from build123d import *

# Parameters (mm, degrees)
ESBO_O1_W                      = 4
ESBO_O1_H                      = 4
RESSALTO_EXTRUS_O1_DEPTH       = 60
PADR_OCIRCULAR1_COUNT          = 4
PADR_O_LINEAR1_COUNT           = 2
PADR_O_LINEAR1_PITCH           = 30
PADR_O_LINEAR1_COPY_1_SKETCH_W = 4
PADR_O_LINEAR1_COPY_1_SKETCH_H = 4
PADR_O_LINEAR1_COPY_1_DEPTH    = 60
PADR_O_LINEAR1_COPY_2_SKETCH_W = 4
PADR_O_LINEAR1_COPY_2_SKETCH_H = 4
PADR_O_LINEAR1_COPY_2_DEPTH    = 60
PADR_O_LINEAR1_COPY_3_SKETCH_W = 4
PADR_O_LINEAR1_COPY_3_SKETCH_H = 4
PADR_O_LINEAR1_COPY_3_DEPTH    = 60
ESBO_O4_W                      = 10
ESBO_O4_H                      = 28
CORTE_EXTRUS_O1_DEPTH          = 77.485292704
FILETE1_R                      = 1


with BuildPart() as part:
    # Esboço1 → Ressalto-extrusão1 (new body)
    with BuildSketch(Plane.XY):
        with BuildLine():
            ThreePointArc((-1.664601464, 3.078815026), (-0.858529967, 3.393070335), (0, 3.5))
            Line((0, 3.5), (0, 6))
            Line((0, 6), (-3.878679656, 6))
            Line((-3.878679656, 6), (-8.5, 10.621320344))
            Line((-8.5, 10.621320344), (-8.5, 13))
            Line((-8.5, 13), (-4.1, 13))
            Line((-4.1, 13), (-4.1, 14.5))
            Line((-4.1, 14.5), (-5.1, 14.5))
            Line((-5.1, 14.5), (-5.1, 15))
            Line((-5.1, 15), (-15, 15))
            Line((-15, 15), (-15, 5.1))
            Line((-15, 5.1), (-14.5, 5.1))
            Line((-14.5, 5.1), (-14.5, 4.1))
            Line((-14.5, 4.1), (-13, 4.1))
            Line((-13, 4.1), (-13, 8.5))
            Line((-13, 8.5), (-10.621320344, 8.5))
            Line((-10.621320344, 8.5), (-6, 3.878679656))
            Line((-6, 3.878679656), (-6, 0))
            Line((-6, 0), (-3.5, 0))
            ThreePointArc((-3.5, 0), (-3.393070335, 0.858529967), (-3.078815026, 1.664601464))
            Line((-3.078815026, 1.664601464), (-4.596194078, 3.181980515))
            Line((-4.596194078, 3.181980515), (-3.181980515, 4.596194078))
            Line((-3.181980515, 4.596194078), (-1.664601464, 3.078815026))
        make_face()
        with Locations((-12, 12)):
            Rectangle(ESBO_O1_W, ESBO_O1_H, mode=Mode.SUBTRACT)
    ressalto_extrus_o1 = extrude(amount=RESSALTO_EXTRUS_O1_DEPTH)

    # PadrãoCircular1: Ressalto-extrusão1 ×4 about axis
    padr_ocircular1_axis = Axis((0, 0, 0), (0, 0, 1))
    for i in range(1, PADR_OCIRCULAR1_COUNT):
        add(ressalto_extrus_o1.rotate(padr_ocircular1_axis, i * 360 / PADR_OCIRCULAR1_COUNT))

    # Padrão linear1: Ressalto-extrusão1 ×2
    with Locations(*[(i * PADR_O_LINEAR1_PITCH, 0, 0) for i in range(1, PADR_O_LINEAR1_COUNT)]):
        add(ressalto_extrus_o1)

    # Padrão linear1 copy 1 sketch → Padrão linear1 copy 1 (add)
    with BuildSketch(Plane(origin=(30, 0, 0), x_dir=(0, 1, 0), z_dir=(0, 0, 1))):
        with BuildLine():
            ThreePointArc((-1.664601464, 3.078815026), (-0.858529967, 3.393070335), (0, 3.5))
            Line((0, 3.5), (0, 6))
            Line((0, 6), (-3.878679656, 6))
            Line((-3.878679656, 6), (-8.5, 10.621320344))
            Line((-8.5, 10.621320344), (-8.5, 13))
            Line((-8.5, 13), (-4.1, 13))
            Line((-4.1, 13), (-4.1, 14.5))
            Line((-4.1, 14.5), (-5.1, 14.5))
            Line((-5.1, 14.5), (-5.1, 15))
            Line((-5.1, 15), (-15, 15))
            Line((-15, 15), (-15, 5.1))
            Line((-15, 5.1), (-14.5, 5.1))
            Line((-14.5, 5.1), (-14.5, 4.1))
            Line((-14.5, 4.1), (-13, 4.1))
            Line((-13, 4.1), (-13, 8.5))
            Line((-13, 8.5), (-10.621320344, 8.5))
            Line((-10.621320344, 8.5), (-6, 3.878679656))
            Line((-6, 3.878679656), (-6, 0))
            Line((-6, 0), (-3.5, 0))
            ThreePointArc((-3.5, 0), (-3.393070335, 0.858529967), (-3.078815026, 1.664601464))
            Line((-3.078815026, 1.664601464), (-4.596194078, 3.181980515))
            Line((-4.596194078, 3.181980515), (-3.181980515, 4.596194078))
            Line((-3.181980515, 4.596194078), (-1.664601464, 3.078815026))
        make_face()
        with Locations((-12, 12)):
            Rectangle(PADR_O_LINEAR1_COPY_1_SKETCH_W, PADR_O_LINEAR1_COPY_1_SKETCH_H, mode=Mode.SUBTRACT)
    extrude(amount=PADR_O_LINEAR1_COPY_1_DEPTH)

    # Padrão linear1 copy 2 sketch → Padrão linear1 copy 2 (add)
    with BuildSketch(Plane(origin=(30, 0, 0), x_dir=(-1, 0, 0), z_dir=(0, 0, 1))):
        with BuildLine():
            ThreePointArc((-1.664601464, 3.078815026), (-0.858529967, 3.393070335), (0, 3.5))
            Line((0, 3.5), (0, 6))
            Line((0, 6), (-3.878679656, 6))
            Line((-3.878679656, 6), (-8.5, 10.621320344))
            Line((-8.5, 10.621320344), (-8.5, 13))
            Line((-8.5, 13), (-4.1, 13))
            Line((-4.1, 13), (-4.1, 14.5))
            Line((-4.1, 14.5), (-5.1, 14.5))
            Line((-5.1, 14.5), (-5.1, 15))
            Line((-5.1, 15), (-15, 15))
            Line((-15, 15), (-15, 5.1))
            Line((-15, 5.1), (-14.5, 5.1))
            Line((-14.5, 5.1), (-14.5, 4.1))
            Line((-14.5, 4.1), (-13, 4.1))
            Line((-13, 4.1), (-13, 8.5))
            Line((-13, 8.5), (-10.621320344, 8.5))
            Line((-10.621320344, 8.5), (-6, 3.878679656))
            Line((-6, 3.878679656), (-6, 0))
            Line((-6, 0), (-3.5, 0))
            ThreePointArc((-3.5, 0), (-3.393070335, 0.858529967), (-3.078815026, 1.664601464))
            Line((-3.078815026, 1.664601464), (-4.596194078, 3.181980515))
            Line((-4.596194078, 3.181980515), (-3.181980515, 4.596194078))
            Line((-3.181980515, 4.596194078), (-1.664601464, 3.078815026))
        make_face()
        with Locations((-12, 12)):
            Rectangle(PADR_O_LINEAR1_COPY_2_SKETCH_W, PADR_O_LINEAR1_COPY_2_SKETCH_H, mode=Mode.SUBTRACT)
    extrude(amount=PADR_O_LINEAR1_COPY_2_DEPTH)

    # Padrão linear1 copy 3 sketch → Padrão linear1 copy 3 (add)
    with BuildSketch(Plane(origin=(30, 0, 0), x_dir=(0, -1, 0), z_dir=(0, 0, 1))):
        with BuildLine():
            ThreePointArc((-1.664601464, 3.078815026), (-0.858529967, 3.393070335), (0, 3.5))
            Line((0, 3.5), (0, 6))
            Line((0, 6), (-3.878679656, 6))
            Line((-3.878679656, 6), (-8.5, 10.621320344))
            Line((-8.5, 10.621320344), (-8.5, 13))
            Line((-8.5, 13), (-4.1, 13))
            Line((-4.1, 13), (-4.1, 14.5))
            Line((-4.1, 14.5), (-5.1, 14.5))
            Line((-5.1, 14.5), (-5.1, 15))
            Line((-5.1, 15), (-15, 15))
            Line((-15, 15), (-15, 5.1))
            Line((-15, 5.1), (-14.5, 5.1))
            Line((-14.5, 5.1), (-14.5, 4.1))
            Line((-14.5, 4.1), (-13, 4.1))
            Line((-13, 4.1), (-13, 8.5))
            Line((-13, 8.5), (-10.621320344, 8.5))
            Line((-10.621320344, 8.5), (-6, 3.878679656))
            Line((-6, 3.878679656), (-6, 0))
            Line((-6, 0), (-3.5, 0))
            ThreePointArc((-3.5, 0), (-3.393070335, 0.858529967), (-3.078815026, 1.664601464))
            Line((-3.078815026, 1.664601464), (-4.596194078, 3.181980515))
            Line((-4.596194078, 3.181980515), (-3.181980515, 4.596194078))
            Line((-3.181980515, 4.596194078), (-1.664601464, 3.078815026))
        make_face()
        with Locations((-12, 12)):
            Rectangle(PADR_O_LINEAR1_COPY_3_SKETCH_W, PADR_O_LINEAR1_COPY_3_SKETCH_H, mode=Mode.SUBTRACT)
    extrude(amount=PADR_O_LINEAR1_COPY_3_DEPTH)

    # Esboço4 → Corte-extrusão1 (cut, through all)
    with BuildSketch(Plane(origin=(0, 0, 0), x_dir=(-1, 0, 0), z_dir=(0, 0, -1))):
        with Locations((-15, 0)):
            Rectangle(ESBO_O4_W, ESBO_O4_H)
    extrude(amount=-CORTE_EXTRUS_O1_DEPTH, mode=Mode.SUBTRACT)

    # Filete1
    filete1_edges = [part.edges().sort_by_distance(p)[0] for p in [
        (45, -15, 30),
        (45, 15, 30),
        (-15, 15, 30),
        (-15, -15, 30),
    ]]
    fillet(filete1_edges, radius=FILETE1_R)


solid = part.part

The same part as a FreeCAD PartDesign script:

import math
import FreeCAD as App
import Part
import Sketcher

V = App.Vector
Q = App.Units.Quantity


def edges_at(feature, points):
    """Names of the edges that pass closest to the given points."""
    edges = feature.Shape.Edges
    near = lambda p: min(range(len(edges)), key=lambda i: edges[i].distToShape(Part.Vertex(*p))[0])
    return sorted({f"Edge{near(p) + 1}" for p in points})


def add_polygon(sketch, points):
    """Adds a closed chain of lines whose ends are joined by coincident constraints."""
    first, n = sketch.GeometryCount, len(points)
    for a, b in zip(points, points[1:] + points[:1]):
        sketch.addGeometry(Part.LineSegment(App.Vector(*a, 0), App.Vector(*b, 0)), False)
    for i in range(n):
        sketch.addConstraint(Sketcher.Constraint("Coincident", first + i, 2, first + (i + 1) % n, 1))

doc = App.newDocument("Part")
params = doc.addObject("Spreadsheet::Sheet", "Params")
for row, (alias, value) in enumerate([
    ("sketch1_radius", "3.5 mm"),
    ("sketch1_width", "1 mm"),
    ("sketch1_width2", "4 mm"),
    ("sketch1_length", "2 mm"),
    ("sketch1_width3", "4.4 mm"),
    ("pad1_length", "60 mm"),
    ("linearpattern_pitch", "30 mm"),
    ("sketch2_radius", "3.5 mm"),
    ("sketch2_width", "1 mm"),
    ("sketch2_width2", "4 mm"),
    ("sketch2_length", "2 mm"),
    ("sketch2_width3", "2.5 mm"),
    ("pad2_length", "60 mm"),
    ("sketch3_radius", "3.5 mm"),
    ("sketch3_width", "1 mm"),
    ("sketch3_width2", "4 mm"),
    ("sketch3_length", "2 mm"),
    ("sketch3_width3", "4.4 mm"),
    ("pad3_length", "60 mm"),
    ("sketch4_radius", "3.5 mm"),
    ("sketch4_width", "1 mm"),
    ("sketch4_width2", "4 mm"),
    ("sketch4_length", "2 mm"),
    ("sketch4_width3", "2.5 mm"),
    ("pad4_length", "60 mm"),
    ("sketch5_width", "10 mm"),
    ("sketch5_height", "28 mm"),
    ("fillet_radius", "1 mm"),
], start=1):
    params.set(f"A{row}", alias)
    params.set(f"B{row}", "=" + value)
    params.setAlias(f"B{row}", alias)

body = doc.addObject("PartDesign::Body", "Body")

# Sketch on XY plane
sketch1 = body.newObject("Sketcher::SketchObject", "Sketch")
sketch1.AttachmentSupport = (doc.getObject("XY_Plane"), [""])
sketch1.MapMode = "FlatFace"
sketch1.addGeometry(Part.ArcOfCircle(Part.Circle(V(0, 0, 0), V(0, 0, 1), 3.5), math.radians(90), math.radians(118)), False)  # 0
sketch1.addGeometry(Part.LineSegment(V(0, 3.5, 0), V(0, 6, 0)), False)  # 1
sketch1.addGeometry(Part.LineSegment(V(0, 6, 0), V(-3.9, 6, 0)), False)  # 2
sketch1.addGeometry(Part.LineSegment(V(-3.9, 6, 0), V(-8.5, 10.6, 0)), False)  # 3
sketch1.addGeometry(Part.LineSegment(V(-8.5, 10.6, 0), V(-8.5, 13, 0)), False)  # 4
sketch1.addGeometry(Part.LineSegment(V(-8.5, 13, 0), V(-4.1, 13, 0)), False)  # 5
sketch1.addGeometry(Part.LineSegment(V(-4.1, 13, 0), V(-4.1, 14.5, 0)), False)  # 6
sketch1.addGeometry(Part.LineSegment(V(-4.1, 14.5, 0), V(-5.1, 14.5, 0)), False)  # 7
sketch1.addGeometry(Part.LineSegment(V(-5.1, 14.5, 0), V(-5.1, 15, 0)), False)  # 8
sketch1.addGeometry(Part.LineSegment(V(-5.1, 15, 0), V(-15, 15, 0)), False)  # 9
sketch1.addGeometry(Part.LineSegment(V(-15, 15, 0), V(-15, 5.1, 0)), False)  # 10
sketch1.addGeometry(Part.LineSegment(V(-15, 5.1, 0), V(-14.5, 5.1, 0)), False)  # 11
sketch1.addGeometry(Part.LineSegment(V(-14.5, 5.1, 0), V(-14.5, 4.1, 0)), False)  # 12
sketch1.addGeometry(Part.LineSegment(V(-14.5, 4.1, 0), V(-13, 4.1, 0)), False)  # 13
sketch1.addGeometry(Part.LineSegment(V(-13, 4.1, 0), V(-13, 8.5, 0)), False)  # 14
sketch1.addGeometry(Part.LineSegment(V(-13, 8.5, 0), V(-10.6, 8.5, 0)), False)  # 15
sketch1.addGeometry(Part.LineSegment(V(-10.6, 8.5, 0), V(-6, 3.9, 0)), False)  # 16
sketch1.addGeometry(Part.LineSegment(V(-6, 3.9, 0), V(-6, 0, 0)), False)  # 17
sketch1.addGeometry(Part.LineSegment(V(-6, 0, 0), V(-3.5, 0, 0)), False)  # 18
sketch1.addGeometry(Part.ArcOfCircle(Part.Circle(V(0, 0, 0), V(0, 0, 1), 3.5), math.radians(152), math.radians(180)), False)  # 19
sketch1.addGeometry(Part.LineSegment(V(-3.1, 1.7, 0), V(-4.6, 3.2, 0)), False)  # 20
sketch1.addGeometry(Part.LineSegment(V(-4.6, 3.2, 0), V(-3.2, 4.6, 0)), False)  # 21
sketch1.addGeometry(Part.LineSegment(V(-3.2, 4.6, 0), V(-1.7, 3.1, 0)), False)  # 22
add_polygon(sketch1, [(-10, 10), (-14, 10), (-14, 14), (-10, 14)])  # lines 23-26
sketch1.addConstraint([
    Sketcher.Constraint("Coincident", 0, 1, 1, 1),
    Sketcher.Constraint("Coincident", 1, 2, 2, 1),
    Sketcher.Constraint("Coincident", 2, 2, 3, 1),
    Sketcher.Constraint("Coincident", 3, 2, 4, 1),
    Sketcher.Constraint("Coincident", 4, 2, 5, 1),
    Sketcher.Constraint("Coincident", 5, 2, 6, 1),
    Sketcher.Constraint("Coincident", 6, 2, 7, 1),
    Sketcher.Constraint("Coincident", 7, 2, 8, 1),
    Sketcher.Constraint("Coincident", 8, 2, 9, 1),
    Sketcher.Constraint("Coincident", 9, 2, 10, 1),
    Sketcher.Constraint("Coincident", 10, 2, 11, 1),
    Sketcher.Constraint("Coincident", 11, 2, 12, 1),
    Sketcher.Constraint("Coincident", 12, 2, 13, 1),
    Sketcher.Constraint("Coincident", 13, 2, 14, 1),
    Sketcher.Constraint("Coincident", 14, 2, 15, 1),
    Sketcher.Constraint("Coincident", 15, 2, 16, 1),
    Sketcher.Constraint("Coincident", 16, 2, 17, 1),
    Sketcher.Constraint("Coincident", 17, 2, 18, 1),
    Sketcher.Constraint("Coincident", 18, 2, 19, 2),
    Sketcher.Constraint("Coincident", 19, 1, 20, 1),
    Sketcher.Constraint("Coincident", 20, 2, 21, 1),
    Sketcher.Constraint("Coincident", 21, 2, 22, 1),
    Sketcher.Constraint("Coincident", 22, 2, 0, 2),
    Sketcher.Constraint("Vertical", 1),
    Sketcher.Constraint("Horizontal", 2),
    Sketcher.Constraint("Vertical", 4),
    Sketcher.Constraint("Horizontal", 5),
    Sketcher.Constraint("Vertical", 6),
    Sketcher.Constraint("Horizontal", 7),
    Sketcher.Constraint("Vertical", 8),
    Sketcher.Constraint("Horizontal", 9),
    Sketcher.Constraint("Vertical", 10),
    Sketcher.Constraint("Horizontal", 11),
    Sketcher.Constraint("Vertical", 12),
    Sketcher.Constraint("Horizontal", 13),
    Sketcher.Constraint("Vertical", 14),
    Sketcher.Constraint("Horizontal", 15),
    Sketcher.Constraint("Vertical", 17),
    Sketcher.Constraint("Horizontal", 18),
    Sketcher.Constraint("Horizontal", 23),
    Sketcher.Constraint("Vertical", 24),
    Sketcher.Constraint("Horizontal", 25),
    Sketcher.Constraint("Vertical", 26),
    Sketcher.Constraint("Coincident", 0, 3, -1, 1),
    Sketcher.Constraint("Coincident", 19, 3, -1, 1),
    Sketcher.Constraint("Equal", 0, 19),
    Sketcher.Constraint("PointOnObject", 0, 1, -2),
    Sketcher.Constraint("PointOnObject", 17, 2, -1),
    Sketcher.Constraint("Parallel", 3, 16),
    Sketcher.Constraint("Parallel", 16, 20),
    Sketcher.Constraint("Perpendicular", 20, 21),
    Sketcher.Constraint("Perpendicular", 21, 22),
    Sketcher.Constraint("Equal", 18, 1),
    Sketcher.Constraint("Equal", 15, 4),
    Sketcher.Constraint("Equal", 13, 6),
    Sketcher.Constraint("Equal", 11, 8),
    Sketcher.Constraint("Equal", 9, 10),
    Sketcher.Constraint("Equal", 7, 12),
    Sketcher.Constraint("Equal", 5, 14),
    Sketcher.Constraint("Equal", 2, 17),
    Sketcher.Constraint("Equal", 25, 24),
    Sketcher.Constraint("Equal", 20, 22),
    Sketcher.Constraint("Radius", 0, 3.5),
    Sketcher.Constraint("DistanceX", 7, 2, 7, 1, 1.0),
    Sketcher.Constraint("DistanceX", 23, 2, 23, 1, 4.0),
    Sketcher.Constraint("Angle", 3, Q("135 deg")),
    Sketcher.Constraint("Distance", 21, 2.0),
    Sketcher.Constraint("DistanceX", 5, 1, 5, 2, 4.4),
    Sketcher.Constraint("DistanceX", 9, 2, 9, 1, 9.9),
    Sketcher.Constraint("DistanceX", 11, 1, 11, 2, 0.5),
    Sketcher.Constraint("DistanceX", 13, 1, 13, 2, 1.5),
    Sketcher.Constraint("DistanceX", 18, 1, 18, 2, 2.5),
    Sketcher.Constraint("DistanceY", -1, 1, 4, 2, 13.0),
    Sketcher.Constraint("DistanceX", 23, 2, -1, 1, 14.0),
    Sketcher.Constraint("DistanceY", -1, 1, 23, 2, 10.0),
    Sketcher.Constraint("Distance", 20, 2.145898),
    Sketcher.Constraint("DistanceX", 2, 2, 2, 1, 3.87868),
])
sketch1.setExpression("Constraints[66]", "Params.sketch1_radius")
sketch1.setExpression("Constraints[67]", "Params.sketch1_width")
sketch1.setExpression("Constraints[68]", "Params.sketch1_width2")
sketch1.setExpression("Constraints[70]", "Params.sketch1_length")
sketch1.setExpression("Constraints[71]", "Params.sketch1_width3")
pad1 = body.newObject("PartDesign::Pad", "Pad")
pad1.Profile = sketch1
pad1.setExpression("Length", "Params.pad1_length")
doc.recompute()

polarpattern = body.newObject("PartDesign::PolarPattern", "PolarPattern")
polarpattern.Originals = [pad1]
polarpattern.Axis = (doc.getObject("Z_Axis"), [""])
polarpattern.Angle = 360
polarpattern.Occurrences = 4
body.Tip = polarpattern
doc.recompute()

linearpattern = body.newObject("PartDesign::LinearPattern", "LinearPattern")
linearpattern.Originals = [pad1]
linearpattern.Direction = (doc.getObject("X_Axis"), [""])
linearpattern.Mode = "offset"
linearpattern.setExpression("Offset", "Params.linearpattern_pitch")
linearpattern.Occurrences = 2
body.Tip = linearpattern

# Sketch on XY plane
sketch2 = body.newObject("Sketcher::SketchObject", "Sketch001")
sketch2.AttachmentSupport = (doc.getObject("XY_Plane"), [""])
sketch2.MapMode = "FlatFace"
sketch2.addGeometry(Part.ArcOfCircle(Part.Circle(V(30, 0, 0), V(0, 0, 1), 3.5), math.radians(180), math.radians(208)), False)  # 0
sketch2.addGeometry(Part.LineSegment(V(26.5, 0, 0), V(24, 0, 0)), False)  # 1
sketch2.addGeometry(Part.LineSegment(V(24, 0, 0), V(24, -3.9, 0)), False)  # 2
sketch2.addGeometry(Part.LineSegment(V(24, -3.9, 0), V(19.4, -8.5, 0)), False)  # 3
sketch2.addGeometry(Part.LineSegment(V(19.4, -8.5, 0), V(17, -8.5, 0)), False)  # 4
sketch2.addGeometry(Part.LineSegment(V(17, -8.5, 0), V(17, -4.1, 0)), False)  # 5
sketch2.addGeometry(Part.LineSegment(V(17, -4.1, 0), V(15.5, -4.1, 0)), False)  # 6
sketch2.addGeometry(Part.LineSegment(V(15.5, -4.1, 0), V(15.5, -5.1, 0)), False)  # 7
sketch2.addGeometry(Part.LineSegment(V(15.5, -5.1, 0), V(15, -5.1, 0)), False)  # 8
sketch2.addGeometry(Part.LineSegment(V(15, -5.1, 0), V(15, -15, 0)), False)  # 9
sketch2.addGeometry(Part.LineSegment(V(15, -15, 0), V(24.9, -15, 0)), False)  # 10
sketch2.addGeometry(Part.LineSegment(V(24.9, -15, 0), V(24.9, -14.5, 0)), False)  # 11
sketch2.addGeometry(Part.LineSegment(V(24.9, -14.5, 0), V(25.9, -14.5, 0)), False)  # 12
sketch2.addGeometry(Part.LineSegment(V(25.9, -14.5, 0), V(25.9, -13, 0)), False)  # 13
sketch2.addGeometry(Part.LineSegment(V(25.9, -13, 0), V(21.5, -13, 0)), False)  # 14
sketch2.addGeometry(Part.LineSegment(V(21.5, -13, 0), V(21.5, -10.6, 0)), False)  # 15
sketch2.addGeometry(Part.LineSegment(V(21.5, -10.6, 0), V(26.1, -6, 0)), False)  # 16
sketch2.addGeometry(Part.LineSegment(V(26.1, -6, 0), V(30, -6, 0)), False)  # 17
sketch2.addGeometry(Part.LineSegment(V(30, -6, 0), V(30, -3.5, 0)), False)  # 18
sketch2.addGeometry(Part.ArcOfCircle(Part.Circle(V(30, 0, 0), V(0, 0, 1), 3.5), math.radians(-118), math.radians(-90)), False)  # 19
sketch2.addGeometry(Part.LineSegment(V(28.3, -3.1, 0), V(26.8, -4.6, 0)), False)  # 20
sketch2.addGeometry(Part.LineSegment(V(26.8, -4.6, 0), V(25.4, -3.2, 0)), False)  # 21
sketch2.addGeometry(Part.LineSegment(V(25.4, -3.2, 0), V(26.9, -1.7, 0)), False)  # 22
add_polygon(sketch2, [(20, -10), (20, -14), (16, -14), (16, -10)])  # lines 23-26
sketch2.addConstraint([
    Sketcher.Constraint("Coincident", 0, 1, 1, 1),
    Sketcher.Constraint("Coincident", 1, 2, 2, 1),
    Sketcher.Constraint("Coincident", 2, 2, 3, 1),
    Sketcher.Constraint("Coincident", 3, 2, 4, 1),
    Sketcher.Constraint("Coincident", 4, 2, 5, 1),
    Sketcher.Constraint("Coincident", 5, 2, 6, 1),
    Sketcher.Constraint("Coincident", 6, 2, 7, 1),
    Sketcher.Constraint("Coincident", 7, 2, 8, 1),
    Sketcher.Constraint("Coincident", 8, 2, 9, 1),
    Sketcher.Constraint("Coincident", 9, 2, 10, 1),
    Sketcher.Constraint("Coincident", 10, 2, 11, 1),
    Sketcher.Constraint("Coincident", 11, 2, 12, 1),
    Sketcher.Constraint("Coincident", 12, 2, 13, 1),
    Sketcher.Constraint("Coincident", 13, 2, 14, 1),
    Sketcher.Constraint("Coincident", 14, 2, 15, 1),
    Sketcher.Constraint("Coincident", 15, 2, 16, 1),
    Sketcher.Constraint("Coincident", 16, 2, 17, 1),
    Sketcher.Constraint("Coincident", 17, 2, 18, 1),
    Sketcher.Constraint("Coincident", 18, 2, 19, 2),
    Sketcher.Constraint("Coincident", 19, 1, 20, 1),
    Sketcher.Constraint("Coincident", 20, 2, 21, 1),
    Sketcher.Constraint("Coincident", 21, 2, 22, 1),
    Sketcher.Constraint("Coincident", 22, 2, 0, 2),
    Sketcher.Constraint("Horizontal", 1),
    Sketcher.Constraint("Vertical", 2),
    Sketcher.Constraint("Horizontal", 4),
    Sketcher.Constraint("Vertical", 5),
    Sketcher.Constraint("Horizontal", 6),
    Sketcher.Constraint("Vertical", 7),
    Sketcher.Constraint("Horizontal", 8),
    Sketcher.Constraint("Vertical", 9),
    Sketcher.Constraint("Horizontal", 10),
    Sketcher.Constraint("Vertical", 11),
    Sketcher.Constraint("Horizontal", 12),
    Sketcher.Constraint("Vertical", 13),
    Sketcher.Constraint("Horizontal", 14),
    Sketcher.Constraint("Vertical", 15),
    Sketcher.Constraint("Horizontal", 17),
    Sketcher.Constraint("Vertical", 18),
    Sketcher.Constraint("Vertical", 23),
    Sketcher.Constraint("Horizontal", 24),
    Sketcher.Constraint("Vertical", 25),
    Sketcher.Constraint("Horizontal", 26),
    Sketcher.Constraint("Coincident", 19, 3, 0, 3),
    Sketcher.Constraint("Equal", 0, 19),
    Sketcher.Constraint("PointOnObject", 0, 3, -1),
    Sketcher.Constraint("PointOnObject", 0, 1, -1),
    Sketcher.Constraint("Parallel", 3, 16),
    Sketcher.Constraint("Parallel", 16, 20),
    Sketcher.Constraint("Perpendicular", 20, 21),
    Sketcher.Constraint("Perpendicular", 21, 22),
    Sketcher.Constraint("Vertical", 19, 3, 17, 2),
    Sketcher.Constraint("Equal", 17, 2),
    Sketcher.Constraint("Equal", 14, 5),
    Sketcher.Constraint("Equal", 12, 7),
    Sketcher.Constraint("Equal", 10, 9),
    Sketcher.Constraint("Equal", 8, 11),
    Sketcher.Constraint("Equal", 6, 13),
    Sketcher.Constraint("Equal", 4, 15),
    Sketcher.Constraint("Equal", 1, 18),
    Sketcher.Constraint("Equal", 26, 23),
    Sketcher.Constraint("Equal", 20, 22),
    Sketcher.Constraint("Radius", 0, 3.5),
    Sketcher.Constraint("DistanceX", 12, 1, 12, 2, 1.0),
    Sketcher.Constraint("DistanceX", 24, 2, 24, 1, 4.0),
    Sketcher.Constraint("Angle", 3, Q("-135 deg")),
    Sketcher.Constraint("Distance", 21, 2.0),
    Sketcher.Constraint("DistanceX", 1, 2, 1, 1, 2.5),
    Sketcher.Constraint("DistanceX", 6, 2, 6, 1, 1.5),
    Sketcher.Constraint("DistanceX", 8, 2, 8, 1, 0.5),
    Sketcher.Constraint("DistanceX", 10, 1, 10, 2, 9.9),
    Sketcher.Constraint("DistanceX", 14, 2, 14, 1, 4.4),
    Sketcher.Constraint("DistanceX", -1, 1, 0, 3, 30.0),
    Sketcher.Constraint("DistanceX", -1, 1, 4, 2, 17.0),
    Sketcher.Constraint("DistanceX", -1, 1, 23, 2, 20.0),
    Sketcher.Constraint("DistanceY", 23, 2, -1, 1, 14.0),
    Sketcher.Constraint("Distance", 20, 2.145898),
    Sketcher.Constraint("DistanceX", 4, 2, 4, 1, 2.37868),
])
sketch2.setExpression("Constraints[66]", "Params.sketch2_radius")
sketch2.setExpression("Constraints[67]", "Params.sketch2_width")
sketch2.setExpression("Constraints[68]", "Params.sketch2_width2")
sketch2.setExpression("Constraints[70]", "Params.sketch2_length")
sketch2.setExpression("Constraints[71]", "Params.sketch2_width3")
pad2 = body.newObject("PartDesign::Pad", "Pad001")
pad2.Profile = sketch2
pad2.setExpression("Length", "Params.pad2_length")

# Sketch on XY plane
sketch3 = body.newObject("Sketcher::SketchObject", "Sketch002")
sketch3.AttachmentSupport = (doc.getObject("XY_Plane"), [""])
sketch3.MapMode = "FlatFace"
sketch3.addGeometry(Part.ArcOfCircle(Part.Circle(V(30, 0, 0), V(0, 0, 1), 3.5), math.radians(-90), math.radians(-62)), False)  # 0
sketch3.addGeometry(Part.LineSegment(V(30, -3.5, 0), V(30, -6, 0)), False)  # 1
sketch3.addGeometry(Part.LineSegment(V(30, -6, 0), V(33.9, -6, 0)), False)  # 2
sketch3.addGeometry(Part.LineSegment(V(33.9, -6, 0), V(38.5, -10.6, 0)), False)  # 3
sketch3.addGeometry(Part.LineSegment(V(38.5, -10.6, 0), V(38.5, -13, 0)), False)  # 4
sketch3.addGeometry(Part.LineSegment(V(38.5, -13, 0), V(34.1, -13, 0)), False)  # 5
sketch3.addGeometry(Part.LineSegment(V(34.1, -13, 0), V(34.1, -14.5, 0)), False)  # 6
sketch3.addGeometry(Part.LineSegment(V(34.1, -14.5, 0), V(35.1, -14.5, 0)), False)  # 7
sketch3.addGeometry(Part.LineSegment(V(35.1, -14.5, 0), V(35.1, -15, 0)), False)  # 8
sketch3.addGeometry(Part.LineSegment(V(35.1, -15, 0), V(45, -15, 0)), False)  # 9
sketch3.addGeometry(Part.LineSegment(V(45, -15, 0), V(45, -5.1, 0)), False)  # 10
sketch3.addGeometry(Part.LineSegment(V(45, -5.1, 0), V(44.5, -5.1, 0)), False)  # 11
sketch3.addGeometry(Part.LineSegment(V(44.5, -5.1, 0), V(44.5, -4.1, 0)), False)  # 12
sketch3.addGeometry(Part.LineSegment(V(44.5, -4.1, 0), V(43, -4.1, 0)), False)  # 13
sketch3.addGeometry(Part.LineSegment(V(43, -4.1, 0), V(43, -8.5, 0)), False)  # 14
sketch3.addGeometry(Part.LineSegment(V(43, -8.5, 0), V(40.6, -8.5, 0)), False)  # 15
sketch3.addGeometry(Part.LineSegment(V(40.6, -8.5, 0), V(36, -3.9, 0)), False)  # 16
sketch3.addGeometry(Part.LineSegment(V(36, -3.9, 0), V(36, 0, 0)), False)  # 17
sketch3.addGeometry(Part.LineSegment(V(36, 0, 0), V(33.5, 0, 0)), False)  # 18
sketch3.addGeometry(Part.ArcOfCircle(Part.Circle(V(30, 0, 0), V(0, 0, 1), 3.5), math.radians(-28), math.radians(0)), False)  # 19
sketch3.addGeometry(Part.LineSegment(V(33.1, -1.7, 0), V(34.6, -3.2, 0)), False)  # 20
sketch3.addGeometry(Part.LineSegment(V(34.6, -3.2, 0), V(33.2, -4.6, 0)), False)  # 21
sketch3.addGeometry(Part.LineSegment(V(33.2, -4.6, 0), V(31.7, -3.1, 0)), False)  # 22
add_polygon(sketch3, [(40, -10), (44, -10), (44, -14), (40, -14)])  # lines 23-26
sketch3.addConstraint([
    Sketcher.Constraint("Coincident", 0, 1, 1, 1),
    Sketcher.Constraint("Coincident", 1, 2, 2, 1),
    Sketcher.Constraint("Coincident", 2, 2, 3, 1),
    Sketcher.Constraint("Coincident", 3, 2, 4, 1),
    Sketcher.Constraint("Coincident", 4, 2, 5, 1),
    Sketcher.Constraint("Coincident", 5, 2, 6, 1),
    Sketcher.Constraint("Coincident", 6, 2, 7, 1),
    Sketcher.Constraint("Coincident", 7, 2, 8, 1),
    Sketcher.Constraint("Coincident", 8, 2, 9, 1),
    Sketcher.Constraint("Coincident", 9, 2, 10, 1),
    Sketcher.Constraint("Coincident", 10, 2, 11, 1),
    Sketcher.Constraint("Coincident", 11, 2, 12, 1),
    Sketcher.Constraint("Coincident", 12, 2, 13, 1),
    Sketcher.Constraint("Coincident", 13, 2, 14, 1),
    Sketcher.Constraint("Coincident", 14, 2, 15, 1),
    Sketcher.Constraint("Coincident", 15, 2, 16, 1),
    Sketcher.Constraint("Coincident", 16, 2, 17, 1),
    Sketcher.Constraint("Coincident", 17, 2, 18, 1),
    Sketcher.Constraint("Coincident", 18, 2, 19, 2),
    Sketcher.Constraint("Coincident", 19, 1, 20, 1),
    Sketcher.Constraint("Coincident", 20, 2, 21, 1),
    Sketcher.Constraint("Coincident", 21, 2, 22, 1),
    Sketcher.Constraint("Coincident", 22, 2, 0, 2),
    Sketcher.Constraint("Vertical", 1),
    Sketcher.Constraint("Horizontal", 2),
    Sketcher.Constraint("Vertical", 4),
    Sketcher.Constraint("Horizontal", 5),
    Sketcher.Constraint("Vertical", 6),
    Sketcher.Constraint("Horizontal", 7),
    Sketcher.Constraint("Vertical", 8),
    Sketcher.Constraint("Horizontal", 9),
    Sketcher.Constraint("Vertical", 10),
    Sketcher.Constraint("Horizontal", 11),
    Sketcher.Constraint("Vertical", 12),
    Sketcher.Constraint("Horizontal", 13),
    Sketcher.Constraint("Vertical", 14),
    Sketcher.Constraint("Horizontal", 15),
    Sketcher.Constraint("Vertical", 17),
    Sketcher.Constraint("Horizontal", 18),
    Sketcher.Constraint("Horizontal", 23),
    Sketcher.Constraint("Vertical", 24),
    Sketcher.Constraint("Horizontal", 25),
    Sketcher.Constraint("Vertical", 26),
    Sketcher.Constraint("Coincident", 19, 3, 0, 3),
    Sketcher.Constraint("Equal", 0, 19),
    Sketcher.Constraint("PointOnObject", 0, 3, -1),
    Sketcher.Constraint("PointOnObject", 17, 2, -1),
    Sketcher.Constraint("Parallel", 3, 16),
    Sketcher.Constraint("Parallel", 16, 20),
    Sketcher.Constraint("Perpendicular", 20, 21),
    Sketcher.Constraint("Perpendicular", 21, 22),
    Sketcher.Constraint("Vertical", 19, 3, 0, 1),
    Sketcher.Constraint("Equal", 18, 1),
    Sketcher.Constraint("Equal", 15, 4),
    Sketcher.Constraint("Equal", 13, 6),
    Sketcher.Constraint("Equal", 11, 8),
    Sketcher.Constraint("Equal", 9, 10),
    Sketcher.Constraint("Equal", 7, 12),
    Sketcher.Constraint("Equal", 5, 14),
    Sketcher.Constraint("Equal", 2, 17),
    Sketcher.Constraint("Equal", 25, 24),
    Sketcher.Constraint("Equal", 20, 22),
    Sketcher.Constraint("Radius", 0, 3.5),
    Sketcher.Constraint("DistanceX", 7, 1, 7, 2, 1.0),
    Sketcher.Constraint("DistanceX", 23, 1, 23, 2, 4.0),
    Sketcher.Constraint("Angle", 3, Q("-45 deg")),
    Sketcher.Constraint("Distance", 21, 2.0),
    Sketcher.Constraint("DistanceX", 5, 2, 5, 1, 4.4),
    Sketcher.Constraint("DistanceX", 9, 1, 9, 2, 9.9),
    Sketcher.Constraint("DistanceX", 11, 2, 11, 1, 0.5),
    Sketcher.Constraint("DistanceX", 13, 2, 13, 1, 1.5),
    Sketcher.Constraint("DistanceX", 18, 2, 18, 1, 2.5),
    Sketcher.Constraint("DistanceX", -1, 1, 0, 3, 30.0),
    Sketcher.Constraint("DistanceY", 4, 2, -1, 1, 13.0),
    Sketcher.Constraint("DistanceX", -1, 1, 23, 2, 44.0),
    Sketcher.Constraint("DistanceY", 23, 2, -1, 1, 10.0),
    Sketcher.Constraint("Distance", 20, 2.145898),
    Sketcher.Constraint("DistanceX", 2, 1, 2, 2, 3.87868),
])
sketch3.setExpression("Constraints[66]", "Params.sketch3_radius")
sketch3.setExpression("Constraints[67]", "Params.sketch3_width")
sketch3.setExpression("Constraints[68]", "Params.sketch3_width2")
sketch3.setExpression("Constraints[70]", "Params.sketch3_length")
sketch3.setExpression("Constraints[71]", "Params.sketch3_width3")
pad3 = body.newObject("PartDesign::Pad", "Pad002")
pad3.Profile = sketch3
pad3.setExpression("Length", "Params.pad3_length")

# Sketch on XY plane
sketch4 = body.newObject("Sketcher::SketchObject", "Sketch003")
sketch4.AttachmentSupport = (doc.getObject("XY_Plane"), [""])
sketch4.MapMode = "FlatFace"
sketch4.addGeometry(Part.ArcOfCircle(Part.Circle(V(30, 0, 0), V(0, 0, 1), 3.5), math.radians(0), math.radians(28)), False)  # 0
sketch4.addGeometry(Part.LineSegment(V(33.5, 0, 0), V(36, 0, 0)), False)  # 1
sketch4.addGeometry(Part.LineSegment(V(36, 0, 0), V(36, 3.9, 0)), False)  # 2
sketch4.addGeometry(Part.LineSegment(V(36, 3.9, 0), V(40.6, 8.5, 0)), False)  # 3
sketch4.addGeometry(Part.LineSegment(V(40.6, 8.5, 0), V(43, 8.5, 0)), False)  # 4
sketch4.addGeometry(Part.LineSegment(V(43, 8.5, 0), V(43, 4.1, 0)), False)  # 5
sketch4.addGeometry(Part.LineSegment(V(43, 4.1, 0), V(44.5, 4.1, 0)), False)  # 6
sketch4.addGeometry(Part.LineSegment(V(44.5, 4.1, 0), V(44.5, 5.1, 0)), False)  # 7
sketch4.addGeometry(Part.LineSegment(V(44.5, 5.1, 0), V(45, 5.1, 0)), False)  # 8
sketch4.addGeometry(Part.LineSegment(V(45, 5.1, 0), V(45, 15, 0)), False)  # 9
sketch4.addGeometry(Part.LineSegment(V(45, 15, 0), V(35.1, 15, 0)), False)  # 10
sketch4.addGeometry(Part.LineSegment(V(35.1, 15, 0), V(35.1, 14.5, 0)), False)  # 11
sketch4.addGeometry(Part.LineSegment(V(35.1, 14.5, 0), V(34.1, 14.5, 0)), False)  # 12
sketch4.addGeometry(Part.LineSegment(V(34.1, 14.5, 0), V(34.1, 13, 0)), False)  # 13
sketch4.addGeometry(Part.LineSegment(V(34.1, 13, 0), V(38.5, 13, 0)), False)  # 14
sketch4.addGeometry(Part.LineSegment(V(38.5, 13, 0), V(38.5, 10.6, 0)), False)  # 15
sketch4.addGeometry(Part.LineSegment(V(38.5, 10.6, 0), V(33.9, 6, 0)), False)  # 16
sketch4.addGeometry(Part.LineSegment(V(33.9, 6, 0), V(30, 6, 0)), False)  # 17
sketch4.addGeometry(Part.LineSegment(V(30, 6, 0), V(30, 3.5, 0)), False)  # 18
sketch4.addGeometry(Part.ArcOfCircle(Part.Circle(V(30, 0, 0), V(0, 0, 1), 3.5), math.radians(62), math.radians(90)), False)  # 19
sketch4.addGeometry(Part.LineSegment(V(31.7, 3.1, 0), V(33.2, 4.6, 0)), False)  # 20
sketch4.addGeometry(Part.LineSegment(V(33.2, 4.6, 0), V(34.6, 3.2, 0)), False)  # 21
sketch4.addGeometry(Part.LineSegment(V(34.6, 3.2, 0), V(33.1, 1.7, 0)), False)  # 22
add_polygon(sketch4, [(40, 10), (40, 14), (44, 14), (44, 10)])  # lines 23-26
sketch4.addConstraint([
    Sketcher.Constraint("Coincident", 0, 1, 1, 1),
    Sketcher.Constraint("Coincident", 1, 2, 2, 1),
    Sketcher.Constraint("Coincident", 2, 2, 3, 1),
    Sketcher.Constraint("Coincident", 3, 2, 4, 1),
    Sketcher.Constraint("Coincident", 4, 2, 5, 1),
    Sketcher.Constraint("Coincident", 5, 2, 6, 1),
    Sketcher.Constraint("Coincident", 6, 2, 7, 1),
    Sketcher.Constraint("Coincident", 7, 2, 8, 1),
    Sketcher.Constraint("Coincident", 8, 2, 9, 1),
    Sketcher.Constraint("Coincident", 9, 2, 10, 1),
    Sketcher.Constraint("Coincident", 10, 2, 11, 1),
    Sketcher.Constraint("Coincident", 11, 2, 12, 1),
    Sketcher.Constraint("Coincident", 12, 2, 13, 1),
    Sketcher.Constraint("Coincident", 13, 2, 14, 1),
    Sketcher.Constraint("Coincident", 14, 2, 15, 1),
    Sketcher.Constraint("Coincident", 15, 2, 16, 1),
    Sketcher.Constraint("Coincident", 16, 2, 17, 1),
    Sketcher.Constraint("Coincident", 17, 2, 18, 1),
    Sketcher.Constraint("Coincident", 18, 2, 19, 2),
    Sketcher.Constraint("Coincident", 19, 1, 20, 1),
    Sketcher.Constraint("Coincident", 20, 2, 21, 1),
    Sketcher.Constraint("Coincident", 21, 2, 22, 1),
    Sketcher.Constraint("Coincident", 22, 2, 0, 2),
    Sketcher.Constraint("Horizontal", 1),
    Sketcher.Constraint("Vertical", 2),
    Sketcher.Constraint("Horizontal", 4),
    Sketcher.Constraint("Vertical", 5),
    Sketcher.Constraint("Horizontal", 6),
    Sketcher.Constraint("Vertical", 7),
    Sketcher.Constraint("Horizontal", 8),
    Sketcher.Constraint("Vertical", 9),
    Sketcher.Constraint("Horizontal", 10),
    Sketcher.Constraint("Vertical", 11),
    Sketcher.Constraint("Horizontal", 12),
    Sketcher.Constraint("Vertical", 13),
    Sketcher.Constraint("Horizontal", 14),
    Sketcher.Constraint("Vertical", 15),
    Sketcher.Constraint("Horizontal", 17),
    Sketcher.Constraint("Vertical", 18),
    Sketcher.Constraint("Vertical", 23),
    Sketcher.Constraint("Horizontal", 24),
    Sketcher.Constraint("Vertical", 25),
    Sketcher.Constraint("Horizontal", 26),
    Sketcher.Constraint("Coincident", 19, 3, 0, 3),
    Sketcher.Constraint("Equal", 0, 19),
    Sketcher.Constraint("PointOnObject", 0, 3, -1),
    Sketcher.Constraint("PointOnObject", 0, 1, -1),
    Sketcher.Constraint("Parallel", 3, 16),
    Sketcher.Constraint("Parallel", 16, 20),
    Sketcher.Constraint("Perpendicular", 20, 21),
    Sketcher.Constraint("Perpendicular", 21, 22),
    Sketcher.Constraint("Vertical", 19, 3, 17, 2),
    Sketcher.Constraint("Equal", 17, 2),
    Sketcher.Constraint("Equal", 14, 5),
    Sketcher.Constraint("Equal", 12, 7),
    Sketcher.Constraint("Equal", 10, 9),
    Sketcher.Constraint("Equal", 8, 11),
    Sketcher.Constraint("Equal", 6, 13),
    Sketcher.Constraint("Equal", 4, 15),
    Sketcher.Constraint("Equal", 1, 18),
    Sketcher.Constraint("Equal", 26, 23),
    Sketcher.Constraint("Equal", 20, 22),
    Sketcher.Constraint("Radius", 0, 3.5),
    Sketcher.Constraint("DistanceX", 12, 2, 12, 1, 1.0),
    Sketcher.Constraint("DistanceX", 24, 1, 24, 2, 4.0),
    Sketcher.Constraint("Angle", 3, Q("45 deg")),
    Sketcher.Constraint("Distance", 21, 2.0),
    Sketcher.Constraint("DistanceX", 1, 1, 1, 2, 2.5),
    Sketcher.Constraint("DistanceX", 6, 1, 6, 2, 1.5),
    Sketcher.Constraint("DistanceX", 8, 1, 8, 2, 0.5),
    Sketcher.Constraint("DistanceX", 10, 2, 10, 1, 9.9),
    Sketcher.Constraint("DistanceX", 14, 1, 14, 2, 4.4),
    Sketcher.Constraint("DistanceX", -1, 1, 0, 3, 30.0),
    Sketcher.Constraint("DistanceX", -1, 1, 4, 2, 43.0),
    Sketcher.Constraint("DistanceX", -1, 1, 23, 2, 40.0),
    Sketcher.Constraint("DistanceY", -1, 1, 23, 2, 14.0),
    Sketcher.Constraint("Distance", 20, 2.145898),
    Sketcher.Constraint("DistanceX", 4, 1, 4, 2, 2.37868),
])
sketch4.setExpression("Constraints[66]", "Params.sketch4_radius")
sketch4.setExpression("Constraints[67]", "Params.sketch4_width")
sketch4.setExpression("Constraints[68]", "Params.sketch4_width2")
sketch4.setExpression("Constraints[70]", "Params.sketch4_length")
sketch4.setExpression("Constraints[71]", "Params.sketch4_width3")
pad4 = body.newObject("PartDesign::Pad", "Pad003")
pad4.Profile = sketch4
pad4.setExpression("Length", "Params.pad4_length")

# Sketch on XY plane
sketch5 = body.newObject("Sketcher::SketchObject", "Sketch004")
sketch5.AttachmentSupport = (doc.getObject("XY_Plane"), [""])
sketch5.MapMode = "FlatFace"
add_polygon(sketch5, [(20, 14), (20, -14), (10, -14), (10, 14)])  # lines 0-3
sketch5.addConstraint([
    Sketcher.Constraint("Vertical", 0),
    Sketcher.Constraint("Horizontal", 1),
    Sketcher.Constraint("Vertical", 2),
    Sketcher.Constraint("Horizontal", 3),
    Sketcher.Constraint("DistanceX", 1, 2, 1, 1, 10.0),
    Sketcher.Constraint("DistanceY", 0, 2, 0, 1, 28.0),
    Sketcher.Constraint("DistanceX", -1, 1, 0, 2, 20.0),
    Sketcher.Constraint("DistanceY", 0, 2, -1, 1, 14.0),
])
sketch5.setExpression("Constraints[8]", "Params.sketch5_width")
sketch5.setExpression("Constraints[9]", "Params.sketch5_height")
pocket1 = body.newObject("PartDesign::Pocket", "Pocket")
pocket1.Profile = sketch5
pocket1.Type = "ThroughAll"
pocket1.Reversed = True
doc.recompute()

fillet = body.newObject("PartDesign::Fillet", "Fillet")
fillet.Base = (pocket1, edges_at(pocket1, [
    (45, -15, 30),
    (45, 15, 30),
    (-15, 15, 30),
    (-15, -15, 30),
]))
fillet.setExpression("Radius", "Params.fillet_radius")

doc.recompute()
